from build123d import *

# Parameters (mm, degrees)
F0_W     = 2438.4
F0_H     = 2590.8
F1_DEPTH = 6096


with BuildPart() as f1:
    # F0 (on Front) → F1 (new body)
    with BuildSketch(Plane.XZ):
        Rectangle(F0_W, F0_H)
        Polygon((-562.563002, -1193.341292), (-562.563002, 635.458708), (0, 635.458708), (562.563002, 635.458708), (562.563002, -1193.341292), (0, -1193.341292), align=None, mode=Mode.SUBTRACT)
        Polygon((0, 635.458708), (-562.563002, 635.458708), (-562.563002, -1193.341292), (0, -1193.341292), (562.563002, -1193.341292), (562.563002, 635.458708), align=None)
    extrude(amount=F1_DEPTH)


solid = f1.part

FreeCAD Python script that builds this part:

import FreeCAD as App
import Part
import Sketcher
from FreeCAD import Vector
Q = App.Units.Quantity


def add_polygon(sketch, points):
    """Adds a closed chain of lines whose ends are joined by coincident constraints."""
    first, n = sketch.GeometryCount, len(points)
    for a, b in zip(points, points[1:] + points[:1]):
        sketch.addGeometry(Part.LineSegment(App.Vector(*a, 0), App.Vector(*b, 0)), False)
    for i in range(n):
        sketch.addConstraint(Sketcher.Constraint("Coincident", first + i, 2, first + (i + 1) % n, 1))

doc = App.newDocument("Part")
body = doc.addObject("PartDesign::Body", "Body")

sketch1 = body.newObject("Sketcher::SketchObject", "Sketch")
sketch1.AttachmentSupport = (doc.getObject("XZ_Plane"), [""])
sketch1.MapMode = "FlatFace"
add_polygon(sketch1, [(-1219, 1295), (-1219, -1295), (1219, -1295), (1219, 1295)])
sketch1.addConstraint([
    Sketcher.Constraint("Vertical", 0),
    Sketcher.Constraint("Horizontal", 1),
    Sketcher.Constraint("Vertical", 2),
    Sketcher.Constraint("Horizontal", 3),
    Sketcher.Constraint("Symmetric", 0, 2, 2, 2, -1, 1),
    Sketcher.Constraint("DistanceX", 1, 1, 1, 2, Q("96 in")),
    Sketcher.Constraint("DistanceY", 0, 2, 0, 1, Q("102 in")),
])
pad1 = body.newObject("PartDesign::Pad", "Pad")
pad1.Profile = sketch1
pad1.Length = Q("240 in")

doc.recompute()
